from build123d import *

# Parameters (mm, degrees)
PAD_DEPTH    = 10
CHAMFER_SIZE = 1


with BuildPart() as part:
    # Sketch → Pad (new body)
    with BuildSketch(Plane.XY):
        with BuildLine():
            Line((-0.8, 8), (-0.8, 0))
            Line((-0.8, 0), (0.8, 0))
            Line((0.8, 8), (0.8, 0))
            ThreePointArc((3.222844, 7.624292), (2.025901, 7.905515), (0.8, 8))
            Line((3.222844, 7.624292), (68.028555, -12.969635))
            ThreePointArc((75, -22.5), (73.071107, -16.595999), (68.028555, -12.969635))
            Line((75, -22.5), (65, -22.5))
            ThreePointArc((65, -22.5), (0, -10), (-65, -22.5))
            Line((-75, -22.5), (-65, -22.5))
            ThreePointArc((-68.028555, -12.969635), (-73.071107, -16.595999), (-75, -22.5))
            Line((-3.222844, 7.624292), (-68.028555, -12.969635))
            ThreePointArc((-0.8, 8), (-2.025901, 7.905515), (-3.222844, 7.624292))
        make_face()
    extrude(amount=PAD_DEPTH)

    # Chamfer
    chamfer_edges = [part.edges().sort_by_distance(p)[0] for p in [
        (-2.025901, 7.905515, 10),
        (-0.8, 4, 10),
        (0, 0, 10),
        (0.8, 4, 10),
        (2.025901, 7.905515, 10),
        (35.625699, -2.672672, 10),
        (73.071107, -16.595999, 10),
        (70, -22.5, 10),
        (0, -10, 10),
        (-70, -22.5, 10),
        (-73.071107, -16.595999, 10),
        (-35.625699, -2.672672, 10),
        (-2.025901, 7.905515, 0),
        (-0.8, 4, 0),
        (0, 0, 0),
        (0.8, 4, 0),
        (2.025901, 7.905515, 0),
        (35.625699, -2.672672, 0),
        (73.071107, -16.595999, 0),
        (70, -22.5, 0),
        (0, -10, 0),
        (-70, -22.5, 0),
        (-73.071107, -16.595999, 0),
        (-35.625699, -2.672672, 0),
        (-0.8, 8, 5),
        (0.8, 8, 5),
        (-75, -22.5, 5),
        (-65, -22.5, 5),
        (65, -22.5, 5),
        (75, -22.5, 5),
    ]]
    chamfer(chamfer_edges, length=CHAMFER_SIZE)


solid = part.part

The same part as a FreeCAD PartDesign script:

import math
import FreeCAD as App
import Part
import Sketcher

V = App.Vector
Q = App.Units.Quantity


def edges_at(feature, points):
    """Names of the edges that pass closest to the given points."""
    edges = feature.Shape.Edges
    near = lambda p: min(range(len(edges)), key=lambda i: edges[i].distToShape(Part.Vertex(*p))[0])
    return sorted({f"Edge{near(p) + 1}" for p in points})

doc = App.newDocument("Part")
body = doc.addObject("PartDesign::Body", "Body")

sketch1 = body.newObject("Sketcher::SketchObject", "Sketch")
sketch1.AttachmentSupport = (doc.getObject("XY_Plane"), [""])
sketch1.MapMode = "FlatFace"
sketch1.addGeometry([
    Part.LineSegment(V(-0.8, 0, 0), V(-0.8, 8, 0)),
    Part.ArcOfCircle(Part.Circle(V(-0.8, 0, 0), V(0, 0, 1), 8), math.radians(90), math.radians(107.63)),
    Part.LineSegment(V(-3.2, 7.6, 0), V(-68, -13, 0)),
    Part.ArcOfCircle(Part.Circle(V(-65, -22.5, 0), V(0, 0, 1), 10), math.radians(108), math.radians(180)),
    Part.LineSegment(V(-75, -22.5, 0), V(-65, -22.5, 0)),
    Part.ArcOfCircle(Part.Circle(V(0, -185.2, 0), V(0, 0, 1), 175.2), math.radians(68), math.radians(112)),
    Part.LineSegment(V(65, -22.5, 0), V(75, -22.5, 0)),
    Part.ArcOfCircle(Part.Circle(V(65, -22.5, 0), V(0, 0, 1), 10), math.radians(0), math.radians(72)),
    Part.LineSegment(V(68, -13, 0), V(3.2, 7.6, 0)),
    Part.ArcOfCircle(Part.Circle(V(0.8, 0, 0), V(0, 0, 1), 8), math.radians(72.37), math.radians(90)),
    Part.LineSegment(V(0.8, 8, 0), V(0.8, 0, 0)),
    Part.LineSegment(V(0.8, 0, 0), V(-0.8, 0, 0)),
], False)
sketch1.addConstraint([
    Sketcher.Constraint("Coincident", 0, 2, 1, 1),
    Sketcher.Constraint("Tangent", 1, 2, 2, 1),
    Sketcher.Constraint("Tangent", 2, 2, 3, 1),
    Sketcher.Constraint("Coincident", 3, 2, 4, 1),
    Sketcher.Constraint("Coincident", 4, 2, 5, 2),
    Sketcher.Constraint("Coincident", 5, 1, 6, 1),
    Sketcher.Constraint("Coincident", 6, 2, 7, 1),
    Sketcher.Constraint("Tangent", 7, 2, 8, 1),
    Sketcher.Constraint("Tangent", 8, 2, 9, 1),
    Sketcher.Constraint("Coincident", 9, 2, 10, 1),
    Sketcher.Constraint("Coincident", 10, 2, 11, 1),
    Sketcher.Constraint("Coincident", 11, 2, 0, 1),
    Sketcher.Constraint("Vertical", 0),
    Sketcher.Constraint("Horizontal", 4),
    Sketcher.Constraint("Horizontal", 6),
    Sketcher.Constraint("Vertical", 10),
    Sketcher.Constraint("Horizontal", 11),
    Sketcher.Constraint("Coincident", 4, 2, 3, 3),
    Sketcher.Constraint("Coincident", 5, 1, 7, 3),
    Sketcher.Constraint("Coincident", 10, 2, 9, 3),
    Sketcher.Constraint("Coincident", 11, 2, 1, 3),
    Sketcher.Constraint("Equal", 3, 7),
    Sketcher.Constraint("Equal", 1, 9),
    Sketcher.Constraint("Symmetric", 1, 3, 9, 3, -1, 1),
    Sketcher.Constraint("Symmetric", 3, 3, 7, 3, -2),
    Sketcher.Constraint("Radius", 1, Q("8.000001 mm")),
    Sketcher.Constraint("Radius", 3, Q("10.000001 mm")),
    Sketcher.Constraint("Radius", 5, Q("175.25 mm")),
    Sketcher.Constraint("DistanceX", 11, 2, 11, 1, Q("1.6 mm")),
    Sketcher.Constraint("DistanceX", 3, 3, -1, 1, Q("64.999999 mm")),
    Sketcher.Constraint("DistanceY", 3, 3, -1, 1, Q("22.500001 mm")),
])
pad1 = body.newObject("PartDesign::Pad", "Pad")
pad1.Profile = sketch1
pad1.Length = 10
doc.recompute()

chamfer = body.newObject("PartDesign::Chamfer", "Chamfer")
chamfer.Base = (pad1, edges_at(pad1, [
    (-2.026, 7.906, 10),
    (-0.8, 4, 10),
    (0, 0, 10),
    (0.8, 4, 10),
    (2.026, 7.906, 10),
    (35.626, -2.673, 10),
    (73.071, -16.596, 10),
    (70, -22.5, 10),
    (0, -10, 10),
    (-70, -22.5, 10),
    (-73.071, -16.596, 10),
    (-35.626, -2.673, 10),
    (-2.026, 7.906, 0),
    (-0.8, 4, 0),
    (0, 0, 0),
    (0.8, 4, 0),
    (2.026, 7.906, 0),
    (35.626, -2.673, 0),
    (73.071, -16.596, 0),
    (70, -22.5, 0),
    (0, -10, 0),
    (-70, -22.5, 0),
    (-73.071, -16.596, 0),
    (-35.626, -2.673, 0),
    (-0.8, 8, 5),
    (0.8, 8, 5),
    (-75, -22.5, 5),
    (-65, -22.5, 5),
    (65, -22.5, 5),
    (75, -22.5, 5),
]))
chamfer.Size = 1

doc.recompute()
